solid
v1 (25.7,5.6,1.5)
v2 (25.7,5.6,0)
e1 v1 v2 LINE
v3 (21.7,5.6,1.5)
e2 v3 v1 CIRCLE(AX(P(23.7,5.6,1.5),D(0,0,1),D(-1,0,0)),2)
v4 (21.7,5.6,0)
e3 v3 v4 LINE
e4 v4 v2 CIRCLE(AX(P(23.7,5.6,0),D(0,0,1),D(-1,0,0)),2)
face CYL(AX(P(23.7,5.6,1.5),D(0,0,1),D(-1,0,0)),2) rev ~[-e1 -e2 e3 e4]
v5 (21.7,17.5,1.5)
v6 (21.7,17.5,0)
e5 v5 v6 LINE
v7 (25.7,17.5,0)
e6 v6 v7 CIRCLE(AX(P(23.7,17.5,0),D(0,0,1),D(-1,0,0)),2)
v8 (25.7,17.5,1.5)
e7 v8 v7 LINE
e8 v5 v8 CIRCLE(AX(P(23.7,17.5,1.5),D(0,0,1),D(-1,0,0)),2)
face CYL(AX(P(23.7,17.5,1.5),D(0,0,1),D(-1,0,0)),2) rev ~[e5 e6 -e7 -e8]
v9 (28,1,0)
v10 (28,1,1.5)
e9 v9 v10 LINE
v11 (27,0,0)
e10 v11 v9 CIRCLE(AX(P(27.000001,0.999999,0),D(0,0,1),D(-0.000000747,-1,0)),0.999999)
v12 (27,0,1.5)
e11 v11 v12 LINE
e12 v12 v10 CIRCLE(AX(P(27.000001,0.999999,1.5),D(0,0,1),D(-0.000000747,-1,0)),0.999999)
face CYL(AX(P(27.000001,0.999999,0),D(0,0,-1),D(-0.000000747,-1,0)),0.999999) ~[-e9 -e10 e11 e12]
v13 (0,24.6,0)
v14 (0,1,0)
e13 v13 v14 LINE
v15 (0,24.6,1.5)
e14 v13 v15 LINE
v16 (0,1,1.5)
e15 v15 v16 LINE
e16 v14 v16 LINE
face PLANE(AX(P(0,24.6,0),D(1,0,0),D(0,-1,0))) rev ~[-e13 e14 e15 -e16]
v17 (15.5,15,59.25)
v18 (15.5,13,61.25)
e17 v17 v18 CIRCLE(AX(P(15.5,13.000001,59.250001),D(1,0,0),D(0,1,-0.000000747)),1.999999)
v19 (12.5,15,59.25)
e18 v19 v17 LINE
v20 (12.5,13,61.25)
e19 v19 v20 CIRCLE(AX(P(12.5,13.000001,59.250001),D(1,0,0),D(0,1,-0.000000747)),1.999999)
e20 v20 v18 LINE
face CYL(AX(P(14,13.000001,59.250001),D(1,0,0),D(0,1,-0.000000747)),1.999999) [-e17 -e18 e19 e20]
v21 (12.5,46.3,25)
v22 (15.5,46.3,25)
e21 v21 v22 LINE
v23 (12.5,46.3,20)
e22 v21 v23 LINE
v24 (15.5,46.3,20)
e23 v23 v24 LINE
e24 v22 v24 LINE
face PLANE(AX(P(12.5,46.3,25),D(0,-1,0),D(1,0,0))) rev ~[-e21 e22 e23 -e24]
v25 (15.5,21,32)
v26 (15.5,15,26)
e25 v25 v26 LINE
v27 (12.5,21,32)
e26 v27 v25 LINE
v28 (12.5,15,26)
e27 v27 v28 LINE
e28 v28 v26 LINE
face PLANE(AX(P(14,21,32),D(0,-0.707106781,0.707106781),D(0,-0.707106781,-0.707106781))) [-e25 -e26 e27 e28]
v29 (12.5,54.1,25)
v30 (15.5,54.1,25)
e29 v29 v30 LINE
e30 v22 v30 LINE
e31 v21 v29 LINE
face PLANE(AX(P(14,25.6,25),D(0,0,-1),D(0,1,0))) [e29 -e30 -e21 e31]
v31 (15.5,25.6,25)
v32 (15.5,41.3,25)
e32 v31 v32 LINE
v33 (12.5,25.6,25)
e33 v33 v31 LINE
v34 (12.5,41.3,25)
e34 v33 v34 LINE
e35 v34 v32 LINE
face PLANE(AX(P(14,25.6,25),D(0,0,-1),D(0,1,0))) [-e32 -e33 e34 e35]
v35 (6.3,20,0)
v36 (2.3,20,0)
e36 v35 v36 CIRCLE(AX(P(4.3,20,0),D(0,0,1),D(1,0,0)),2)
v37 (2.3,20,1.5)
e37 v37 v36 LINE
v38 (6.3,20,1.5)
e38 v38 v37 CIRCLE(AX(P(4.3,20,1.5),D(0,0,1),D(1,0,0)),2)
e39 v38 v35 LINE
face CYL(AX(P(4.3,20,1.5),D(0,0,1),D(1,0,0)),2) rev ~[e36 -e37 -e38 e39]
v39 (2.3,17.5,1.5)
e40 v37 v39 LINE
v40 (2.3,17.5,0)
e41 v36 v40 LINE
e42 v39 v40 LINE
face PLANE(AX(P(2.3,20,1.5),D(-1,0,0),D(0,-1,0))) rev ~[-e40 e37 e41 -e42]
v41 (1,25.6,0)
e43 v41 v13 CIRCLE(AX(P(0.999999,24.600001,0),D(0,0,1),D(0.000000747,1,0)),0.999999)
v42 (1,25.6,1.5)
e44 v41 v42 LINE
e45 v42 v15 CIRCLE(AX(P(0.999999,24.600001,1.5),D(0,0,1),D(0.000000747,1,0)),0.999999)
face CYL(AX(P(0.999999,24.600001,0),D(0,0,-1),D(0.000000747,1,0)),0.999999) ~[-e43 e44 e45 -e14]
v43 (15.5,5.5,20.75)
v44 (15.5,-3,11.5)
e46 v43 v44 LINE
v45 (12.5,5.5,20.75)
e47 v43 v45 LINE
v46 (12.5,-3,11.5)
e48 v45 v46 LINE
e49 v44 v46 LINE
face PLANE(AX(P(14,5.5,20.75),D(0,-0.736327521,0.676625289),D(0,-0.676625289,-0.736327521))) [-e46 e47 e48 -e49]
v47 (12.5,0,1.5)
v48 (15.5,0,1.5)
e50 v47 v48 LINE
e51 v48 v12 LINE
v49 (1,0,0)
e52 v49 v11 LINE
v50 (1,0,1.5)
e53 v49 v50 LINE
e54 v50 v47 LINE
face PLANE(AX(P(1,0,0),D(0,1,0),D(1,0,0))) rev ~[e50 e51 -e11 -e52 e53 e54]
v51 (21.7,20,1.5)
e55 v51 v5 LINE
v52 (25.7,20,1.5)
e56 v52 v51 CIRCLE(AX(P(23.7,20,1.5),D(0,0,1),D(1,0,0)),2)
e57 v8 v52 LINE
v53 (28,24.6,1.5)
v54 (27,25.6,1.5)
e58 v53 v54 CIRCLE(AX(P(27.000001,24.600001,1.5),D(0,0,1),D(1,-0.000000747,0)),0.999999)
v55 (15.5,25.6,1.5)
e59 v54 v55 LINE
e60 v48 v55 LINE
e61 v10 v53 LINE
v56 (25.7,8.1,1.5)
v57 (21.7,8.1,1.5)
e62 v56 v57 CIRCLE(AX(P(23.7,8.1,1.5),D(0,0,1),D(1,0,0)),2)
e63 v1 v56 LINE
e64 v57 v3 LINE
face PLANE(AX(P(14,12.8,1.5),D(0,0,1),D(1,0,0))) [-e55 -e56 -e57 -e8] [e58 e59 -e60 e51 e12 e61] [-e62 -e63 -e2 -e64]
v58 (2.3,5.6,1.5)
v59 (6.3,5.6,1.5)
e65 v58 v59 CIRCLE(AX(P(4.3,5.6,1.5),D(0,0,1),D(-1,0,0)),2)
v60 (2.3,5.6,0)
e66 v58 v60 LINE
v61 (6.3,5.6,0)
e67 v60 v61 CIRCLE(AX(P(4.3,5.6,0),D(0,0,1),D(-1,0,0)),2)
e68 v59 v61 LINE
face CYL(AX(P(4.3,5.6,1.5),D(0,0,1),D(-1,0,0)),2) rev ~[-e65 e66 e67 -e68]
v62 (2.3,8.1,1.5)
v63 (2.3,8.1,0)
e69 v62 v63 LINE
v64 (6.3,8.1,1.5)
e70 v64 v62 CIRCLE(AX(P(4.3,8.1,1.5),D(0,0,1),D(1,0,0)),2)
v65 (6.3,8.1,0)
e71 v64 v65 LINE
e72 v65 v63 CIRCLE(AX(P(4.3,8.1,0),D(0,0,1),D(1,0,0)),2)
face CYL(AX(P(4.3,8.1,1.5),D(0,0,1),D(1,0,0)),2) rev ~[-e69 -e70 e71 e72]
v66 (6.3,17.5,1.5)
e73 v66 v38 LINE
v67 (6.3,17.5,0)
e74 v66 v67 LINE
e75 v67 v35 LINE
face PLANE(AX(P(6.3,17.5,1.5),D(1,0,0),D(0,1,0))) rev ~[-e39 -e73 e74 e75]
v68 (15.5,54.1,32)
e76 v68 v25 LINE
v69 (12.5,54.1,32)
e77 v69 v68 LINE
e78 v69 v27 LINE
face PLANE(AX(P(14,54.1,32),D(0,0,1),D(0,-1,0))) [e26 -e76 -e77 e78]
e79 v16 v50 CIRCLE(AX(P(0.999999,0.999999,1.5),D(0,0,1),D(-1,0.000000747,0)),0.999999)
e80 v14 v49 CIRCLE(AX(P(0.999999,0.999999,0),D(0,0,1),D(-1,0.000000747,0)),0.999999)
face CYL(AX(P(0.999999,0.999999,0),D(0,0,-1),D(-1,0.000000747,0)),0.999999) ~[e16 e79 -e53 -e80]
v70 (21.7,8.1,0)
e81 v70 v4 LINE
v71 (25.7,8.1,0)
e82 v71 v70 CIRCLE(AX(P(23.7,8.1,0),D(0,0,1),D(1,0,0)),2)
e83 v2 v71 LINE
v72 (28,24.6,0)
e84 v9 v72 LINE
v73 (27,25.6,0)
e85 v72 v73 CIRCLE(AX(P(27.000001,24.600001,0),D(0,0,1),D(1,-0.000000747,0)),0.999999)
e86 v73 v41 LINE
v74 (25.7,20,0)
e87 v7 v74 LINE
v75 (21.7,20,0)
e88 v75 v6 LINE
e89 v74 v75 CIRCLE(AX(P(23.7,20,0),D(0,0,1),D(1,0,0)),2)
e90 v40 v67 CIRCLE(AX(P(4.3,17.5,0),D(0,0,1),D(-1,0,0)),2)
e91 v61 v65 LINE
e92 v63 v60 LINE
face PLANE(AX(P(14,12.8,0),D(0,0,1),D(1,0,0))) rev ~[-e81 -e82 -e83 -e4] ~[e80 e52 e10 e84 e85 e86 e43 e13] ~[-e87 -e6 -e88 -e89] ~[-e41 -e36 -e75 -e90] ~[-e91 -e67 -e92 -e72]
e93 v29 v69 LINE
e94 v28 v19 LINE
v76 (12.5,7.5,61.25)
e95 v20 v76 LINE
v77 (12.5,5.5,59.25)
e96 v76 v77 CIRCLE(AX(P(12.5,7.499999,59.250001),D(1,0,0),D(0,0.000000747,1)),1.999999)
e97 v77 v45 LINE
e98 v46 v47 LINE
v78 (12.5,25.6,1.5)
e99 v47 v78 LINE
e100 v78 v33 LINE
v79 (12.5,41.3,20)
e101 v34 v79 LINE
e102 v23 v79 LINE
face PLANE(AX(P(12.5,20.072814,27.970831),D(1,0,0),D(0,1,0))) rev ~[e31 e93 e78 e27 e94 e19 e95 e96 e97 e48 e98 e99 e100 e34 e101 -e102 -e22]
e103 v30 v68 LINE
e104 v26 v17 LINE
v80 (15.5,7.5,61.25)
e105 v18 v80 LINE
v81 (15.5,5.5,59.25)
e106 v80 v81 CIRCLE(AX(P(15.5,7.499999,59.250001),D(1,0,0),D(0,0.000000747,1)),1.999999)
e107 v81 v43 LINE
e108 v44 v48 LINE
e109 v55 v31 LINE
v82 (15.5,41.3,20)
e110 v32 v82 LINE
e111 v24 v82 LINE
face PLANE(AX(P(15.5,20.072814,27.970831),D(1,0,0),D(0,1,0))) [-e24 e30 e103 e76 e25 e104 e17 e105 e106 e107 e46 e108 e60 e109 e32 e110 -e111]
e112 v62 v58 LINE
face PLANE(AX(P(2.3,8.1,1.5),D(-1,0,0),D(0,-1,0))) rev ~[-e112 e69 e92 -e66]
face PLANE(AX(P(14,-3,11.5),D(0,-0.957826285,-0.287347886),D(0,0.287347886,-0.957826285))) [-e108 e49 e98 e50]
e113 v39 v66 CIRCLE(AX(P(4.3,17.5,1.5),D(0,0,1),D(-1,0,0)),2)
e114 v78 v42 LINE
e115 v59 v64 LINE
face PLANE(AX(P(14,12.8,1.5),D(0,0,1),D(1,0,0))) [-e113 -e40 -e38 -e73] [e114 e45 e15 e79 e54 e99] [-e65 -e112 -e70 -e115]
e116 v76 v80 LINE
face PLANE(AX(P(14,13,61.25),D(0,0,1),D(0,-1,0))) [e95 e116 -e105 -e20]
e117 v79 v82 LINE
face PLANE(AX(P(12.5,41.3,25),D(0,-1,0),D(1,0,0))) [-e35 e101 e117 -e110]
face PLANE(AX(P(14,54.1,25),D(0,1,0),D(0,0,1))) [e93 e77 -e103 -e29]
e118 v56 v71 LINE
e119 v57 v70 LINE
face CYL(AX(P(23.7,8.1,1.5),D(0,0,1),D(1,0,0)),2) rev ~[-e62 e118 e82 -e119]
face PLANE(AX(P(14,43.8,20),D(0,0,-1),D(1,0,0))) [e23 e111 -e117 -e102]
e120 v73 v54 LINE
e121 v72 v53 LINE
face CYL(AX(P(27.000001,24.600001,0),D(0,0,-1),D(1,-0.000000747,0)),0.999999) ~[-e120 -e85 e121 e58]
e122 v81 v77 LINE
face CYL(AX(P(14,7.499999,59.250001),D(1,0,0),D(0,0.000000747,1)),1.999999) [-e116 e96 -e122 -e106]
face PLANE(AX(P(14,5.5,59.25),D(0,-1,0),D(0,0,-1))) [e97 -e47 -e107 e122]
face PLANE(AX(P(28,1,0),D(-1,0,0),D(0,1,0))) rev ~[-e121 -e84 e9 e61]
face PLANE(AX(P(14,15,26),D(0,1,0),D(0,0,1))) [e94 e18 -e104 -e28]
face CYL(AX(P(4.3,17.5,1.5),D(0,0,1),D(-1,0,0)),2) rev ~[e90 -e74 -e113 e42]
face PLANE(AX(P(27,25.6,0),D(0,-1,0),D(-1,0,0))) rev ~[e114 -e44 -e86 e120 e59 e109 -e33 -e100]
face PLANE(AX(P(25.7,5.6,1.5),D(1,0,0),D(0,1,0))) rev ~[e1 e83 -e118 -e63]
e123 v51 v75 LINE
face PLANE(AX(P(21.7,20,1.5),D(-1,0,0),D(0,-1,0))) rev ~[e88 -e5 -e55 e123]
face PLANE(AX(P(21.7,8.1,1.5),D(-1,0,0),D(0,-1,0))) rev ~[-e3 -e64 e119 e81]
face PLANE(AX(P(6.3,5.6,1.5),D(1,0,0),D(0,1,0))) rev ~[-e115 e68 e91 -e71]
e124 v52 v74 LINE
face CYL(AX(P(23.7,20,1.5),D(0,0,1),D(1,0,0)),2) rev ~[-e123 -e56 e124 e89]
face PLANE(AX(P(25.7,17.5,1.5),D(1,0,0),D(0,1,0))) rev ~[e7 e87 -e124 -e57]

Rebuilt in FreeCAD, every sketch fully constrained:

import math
import FreeCAD as App
import Part
import Sketcher

V = App.Vector
Q = App.Units.Quantity


def add_polygon(sketch, points):
    """Adds a closed chain of lines whose ends are joined by coincident constraints."""
    first, n = sketch.GeometryCount, len(points)
    for a, b in zip(points, points[1:] + points[:1]):
        sketch.addGeometry(Part.LineSegment(App.Vector(*a, 0), App.Vector(*b, 0)), False)
    for i in range(n):
        sketch.addConstraint(Sketcher.Constraint("Coincident", first + i, 2, first + (i + 1) % n, 1))

doc = App.newDocument("Part")
body = doc.addObject("PartDesign::Body", "Body")

# Sketch on XY plane
sketch1 = body.newObject("Sketcher::SketchObject", "Sketch")
sketch1.AttachmentSupport = (doc.getObject("XY_Plane"), [""])
sketch1.MapMode = "FlatFace"
sketch1.addGeometry([
    Part.ArcOfCircle(Part.Circle(V(1, 1, 0), V(0, 0, 1), 1), math.radians(180), math.radians(270)),  # 0
    Part.LineSegment(V(1, 0, 0), V(27, 0, 0)),  # 1
    Part.ArcOfCircle(Part.Circle(V(27, 1, 0), V(0, 0, 1), 1), math.radians(-90), math.radians(0)),  # 2
    Part.LineSegment(V(28, 1, 0), V(28, 24.6, 0)),  # 3
    Part.ArcOfCircle(Part.Circle(V(27, 24.6, 0), V(0, 0, 1), 1), math.radians(0), math.radians(90)),  # 4
    Part.LineSegment(V(27, 25.6, 0), V(1, 25.6, 0)),  # 5
    Part.ArcOfCircle(Part.Circle(V(1, 24.6, 0), V(0, 0, 1), 1), math.radians(90), math.radians(180)),  # 6
    Part.LineSegment(V(0, 24.6, 0), V(0, 1, 0)),  # 7
], False)
sketch1.addConstraint([
    Sketcher.Constraint("Tangent", 0, 2, 1, 1),
    Sketcher.Constraint("Tangent", 1, 2, 2, 1),
    Sketcher.Constraint("Tangent", 2, 2, 3, 1),
    Sketcher.Constraint("Tangent", 3, 2, 4, 1),
    Sketcher.Constraint("Tangent", 4, 2, 5, 1),
    Sketcher.Constraint("Tangent", 5, 2, 6, 1),
    Sketcher.Constraint("Tangent", 6, 2, 7, 1),
    Sketcher.Constraint("Tangent", 7, 2, 0, 1),
    Sketcher.Constraint("Horizontal", 1),
    Sketcher.Constraint("Vertical", 3),
    Sketcher.Constraint("Horizontal", 5),
    Sketcher.Constraint("Vertical", 7),
    Sketcher.Constraint("Equal", 0, 2),
    Sketcher.Constraint("Equal", 2, 4),
    Sketcher.Constraint("Equal", 4, 6),
    Sketcher.Constraint("PointOnObject", 0, 2, -1),
    Sketcher.Constraint("PointOnObject", 6, 2, -2),
    Sketcher.Constraint("Radius", 0, Q("0.999999 mm")),
    Sketcher.Constraint("DistanceX", 1, 1, 1, 2, Q("26 mm")),
    Sketcher.Constraint("DistanceY", 3, 1, 3, 2, Q("23.6 mm")),
])
pad1 = body.newObject("PartDesign::Pad", "Pad")
pad1.Profile = sketch1
pad1.Length = 1.5

# Sketch on XY plane
sketch2 = body.newObject("Sketcher::SketchObject", "Sketch001")
sketch2.AttachmentSupport = (doc.getObject("XY_Plane"), [""])
sketch2.MapMode = "FlatFace"
sketch2.AttachmentOffset = App.Placement(V(0, 0, 1.5), App.Rotation())
sketch2.addGeometry([
    Part.LineSegment(V(6.3, 17.5, 0), V(6.3, 20, 0)),  # 0
    Part.ArcOfCircle(Part.Circle(V(4.3, 20, 0), V(0, 0, 1), 2), math.radians(0), math.radians(180)),  # 1
    Part.LineSegment(V(2.3, 20, 0), V(2.3, 17.5, 0)),  # 2
    Part.ArcOfCircle(Part.Circle(V(4.3, 17.5, 0), V(0, 0, 1), 2), math.radians(180), math.radians(360)),  # 3
    Part.LineSegment(V(6.3, 5.6, 0), V(6.3, 8.1, 0)),  # 4
    Part.ArcOfCircle(Part.Circle(V(4.3, 8.1, 0), V(0, 0, 1), 2), math.radians(0), math.radians(180)),  # 5
    Part.LineSegment(V(2.3, 8.1, 0), V(2.3, 5.6, 0)),  # 6
    Part.ArcOfCircle(Part.Circle(V(4.3, 5.6, 0), V(0, 0, 1), 2), math.radians(180), math.radians(360)),  # 7
    Part.LineSegment(V(25.7, 5.6, 0), V(25.7, 8.1, 0)),  # 8
    Part.ArcOfCircle(Part.Circle(V(23.7, 8.1, 0), V(0, 0, 1), 2), math.radians(0), math.radians(180)),  # 9
    Part.LineSegment(V(21.7, 8.1, 0), V(21.7, 5.6, 0)),  # 10
    Part.ArcOfCircle(Part.Circle(V(23.7, 5.6, 0), V(0, 0, 1), 2), math.radians(180), math.radians(360)),  # 11
    Part.LineSegment(V(25.7, 17.5, 0), V(25.7, 20, 0)),  # 12
    Part.ArcOfCircle(Part.Circle(V(23.7, 20, 0), V(0, 0, 1), 2), math.radians(0), math.radians(180)),  # 13
    Part.LineSegment(V(21.7, 20, 0), V(21.7, 17.5, 0)),  # 14
    Part.ArcOfCircle(Part.Circle(V(23.7, 17.5, 0), V(0, 0, 1), 2), math.radians(180), math.radians(360)),  # 15
], False)
sketch2.addConstraint([
    Sketcher.Constraint("Tangent", 0, 2, 1, 1),
    Sketcher.Constraint("Tangent", 1, 2, 2, 1),
    Sketcher.Constraint("Tangent", 2, 2, 3, 1),
    Sketcher.Constraint("Tangent", 3, 2, 0, 1),
    Sketcher.Constraint("Tangent", 4, 2, 5, 1),
    Sketcher.Constraint("Tangent", 5, 2, 6, 1),
    Sketcher.Constraint("Tangent", 6, 2, 7, 1),
    Sketcher.Constraint("Tangent", 7, 2, 4, 1),
    Sketcher.Constraint("Tangent", 8, 2, 9, 1),
    Sketcher.Constraint("Tangent", 9, 2, 10, 1),
    Sketcher.Constraint("Tangent", 10, 2, 11, 1),
    Sketcher.Constraint("Tangent", 11, 2, 8, 1),
    Sketcher.Constraint("Tangent", 12, 2, 13, 1),
    Sketcher.Constraint("Tangent", 13, 2, 14, 1),
    Sketcher.Constraint("Tangent", 14, 2, 15, 1),
    Sketcher.Constraint("Tangent", 15, 2, 12, 1),
    Sketcher.Constraint("Vertical", 0),
    Sketcher.Constraint("Vertical", 2),
    Sketcher.Constraint("Vertical", 4),
    Sketcher.Constraint("Vertical", 6),
    Sketcher.Constraint("Vertical", 8),
    Sketcher.Constraint("Vertical", 10),
    Sketcher.Constraint("Vertical", 12),
    Sketcher.Constraint("Vertical", 14),
    Sketcher.Constraint("Equal", 3, 5),
    Sketcher.Constraint("Equal", 7, 9),
    Sketcher.Constraint("Equal", 11, 13),
    Sketcher.Constraint("Horizontal", 5, 3, 9, 3),
    Sketcher.Constraint("Horizontal", 7, 3, 11, 3),
    Sketcher.Constraint("Horizontal", 1, 3, 13, 3),
    Sketcher.Constraint("Horizontal", 3, 3, 15, 3),
    Sketcher.Constraint("Vertical", 3, 3, 5, 3),
    Sketcher.Constraint("Vertical", 11, 3, 13, 3),
    Sketcher.Constraint("Equal", 2, 4),
    Sketcher.Constraint("Radius", 1, Q("2 mm")),
    Sketcher.Constraint("DistanceY", 0, 1, 0, 2, Q("2.5 mm")),
    Sketcher.Constraint("DistanceY", -1, 1, 1, 3, Q("20 mm")),
    Sketcher.Constraint("DistanceX", -1, 1, 1, 3, Q("4.3 mm")),
    Sketcher.Constraint("DistanceY", -1, 1, 5, 3, Q("8.1 mm")),
    Sketcher.Constraint("DistanceX", -1, 1, 9, 3, Q("23.7 mm")),
])
pocket1 = body.newObject("PartDesign::Pocket", "Pocket")
pocket1.Profile = sketch2
pocket1.Length = 25

# Sketch on YZ plane
sketch3 = body.newObject("Sketcher::SketchObject", "Sketch002")
sketch3.AttachmentSupport = (doc.getObject("YZ_Plane"), [""])
sketch3.MapMode = "FlatFace"
sketch3.AttachmentOffset = App.Placement(V(0, 0, 14), App.Rotation())
sketch3.addGeometry([
    Part.LineSegment(V(-3, 11.5, 0), V(0, 1.5, 0)),  # 0
    Part.LineSegment(V(0, 1.5, 0), V(25.6, 1.5, 0)),  # 1
    Part.LineSegment(V(25.6, 1.5, 0), V(25.6, 25, 0)),  # 2
    Part.LineSegment(V(25.6, 25, 0), V(54.1, 25, 0)),  # 3
    Part.LineSegment(V(54.1, 25, 0), V(54.1, 32, 0)),  # 4
    Part.LineSegment(V(54.1, 32, 0), V(21, 32, 0)),  # 5
    Part.LineSegment(V(21, 32, 0), V(15, 26, 0)),  # 6
    Part.LineSegment(V(15, 26, 0), V(15, 59.2, 0)),  # 7
    Part.ArcOfCircle(Part.Circle(V(13, 59.3, 0), V(0, 0, 1), 2), math.radians(0), math.radians(90)),  # 8
    Part.LineSegment(V(13, 61.2, 0), V(7.5, 61.2, 0)),  # 9
    Part.ArcOfCircle(Part.Circle(V(7.5, 59.3, 0), V(0, 0, 1), 2), math.radians(90), math.radians(180)),  # 10
    Part.LineSegment(V(5.5, 59.2, 0), V(5.5, 20.8, 0)),  # 11
    Part.LineSegment(V(5.5, 20.8, 0), V(-3, 11.5, 0)),  # 12
], False)
sketch3.addConstraint([
    Sketcher.Constraint("Coincident", 0, 2, 1, 1),
    Sketcher.Constraint("Coincident", 1, 2, 2, 1),
    Sketcher.Constraint("Coincident", 2, 2, 3, 1),
    Sketcher.Constraint("Coincident", 3, 2, 4, 1),
    Sketcher.Constraint("Coincident", 4, 2, 5, 1),
    Sketcher.Constraint("Coincident", 5, 2, 6, 1),
    Sketcher.Constraint("Coincident", 6, 2, 7, 1),
    Sketcher.Constraint("Tangent", 7, 2, 8, 1),
    Sketcher.Constraint("Tangent", 8, 2, 9, 1),
    Sketcher.Constraint("Tangent", 9, 2, 10, 1),
    Sketcher.Constraint("Tangent", 10, 2, 11, 1),
    Sketcher.Constraint("Coincident", 11, 2, 12, 1),
    Sketcher.Constraint("Coincident", 12, 2, 0, 1),
    Sketcher.Constraint("Horizontal", 1),
    Sketcher.Constraint("Vertical", 2),
    Sketcher.Constraint("Horizontal", 3),
    Sketcher.Constraint("Vertical", 4),
    Sketcher.Constraint("Horizontal", 5),
    Sketcher.Constraint("Vertical", 7),
    Sketcher.Constraint("Horizontal", 9),
    Sketcher.Constraint("Vertical", 11),
    Sketcher.Constraint("Equal", 8, 10),
    Sketcher.Constraint("PointOnObject", 0, 2, -2),
    Sketcher.Constraint("Radius", 8, Q("1.999999 mm")),
    Sketcher.Constraint("DistanceY", 4, 1, 4, 2, Q("7 mm")),
    Sketcher.Constraint("Angle", 6, Q("-135 deg")),
    Sketcher.Constraint("DistanceX", 1, 1, 1, 2, Q("25.6 mm")),
    Sketcher.Constraint("DistanceX", 3, 1, 3, 2, Q("28.5 mm")),
    Sketcher.Constraint("DistanceX", 5, 2, 5, 1, Q("33.1 mm")),
    Sketcher.Constraint("DistanceX", 9, 2, 9, 1, Q("5.5 mm")),
    Sketcher.Constraint("DistanceY", 2, 1, 2, 2, Q("23.5 mm")),
    Sketcher.Constraint("DistanceY", 11, 2, 11, 1, Q("38.5 mm")),
    Sketcher.Constraint("DistanceX", -1, 1, 8, 3, Q("13.000001 mm")),
    Sketcher.Constraint("DistanceY", -1, 1, 2, 2, Q("25 mm")),
    Sketcher.Constraint("DistanceX", 12, 2, -1, 1, Q("3 mm")),
    Sketcher.Constraint("DistanceY", 0, 2, 12, 2, Q("10 mm")),
    Sketcher.Constraint("DistanceY", 7, 1, 7, 2, Q("33.25 mm")),
])
pad2 = body.newObject("PartDesign::Pad", "Pad001")
pad2.Profile = sketch3
pad2.Length = 3
pad2.Midplane = True

# Sketch on XY plane
sketch4 = body.newObject("Sketcher::SketchObject", "Sketch003")
sketch4.AttachmentSupport = (doc.getObject("XY_Plane"), [""])
sketch4.MapMode = "FlatFace"
sketch4.AttachmentOffset = App.Placement(V(0, 0, 25), App.Rotation())
add_polygon(sketch4, [(12.5, 41.3), (12.5, 46.3), (15.5, 46.3), (15.5, 41.3)])  # lines 0-3
sketch4.addConstraint([
    Sketcher.Constraint("Vertical", 0),
    Sketcher.Constraint("Horizontal", 1),
    Sketcher.Constraint("Vertical", 2),
    Sketcher.Constraint("Horizontal", 3),
    Sketcher.Constraint("DistanceX", 1, 1, 1, 2, Q("3 mm")),
    Sketcher.Constraint("DistanceY", 0, 1, 0, 2, Q("5 mm")),
    Sketcher.Constraint("DistanceX", -1, 1, 0, 2, Q("12.5 mm")),
    Sketcher.Constraint("DistanceY", -1, 1, 0, 2, Q("46.3 mm")),
])
pad3 = body.newObject("PartDesign::Pad", "Pad002")
pad3.Profile = sketch4
pad3.Length = 5
pad3.Reversed = True

doc.recompute()
